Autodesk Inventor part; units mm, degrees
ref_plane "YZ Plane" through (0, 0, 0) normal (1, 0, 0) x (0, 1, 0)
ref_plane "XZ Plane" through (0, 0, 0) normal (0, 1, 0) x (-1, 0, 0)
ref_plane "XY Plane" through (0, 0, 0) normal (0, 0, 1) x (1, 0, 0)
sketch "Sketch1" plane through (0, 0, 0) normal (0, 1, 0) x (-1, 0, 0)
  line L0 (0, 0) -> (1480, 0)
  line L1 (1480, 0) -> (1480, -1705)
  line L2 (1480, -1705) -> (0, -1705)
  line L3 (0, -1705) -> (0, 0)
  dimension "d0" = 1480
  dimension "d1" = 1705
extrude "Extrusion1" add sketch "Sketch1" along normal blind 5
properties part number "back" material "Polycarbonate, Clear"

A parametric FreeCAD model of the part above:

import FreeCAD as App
import Part
import Sketcher
from FreeCAD import Vector
Q = App.Units.Quantity

doc = App.newDocument("Part")
body = doc.addObject("PartDesign::Body", "Body")

sketch1 = doc.addObject("Sketcher::SketchObject", "Sketch")
body.addObject(sketch1)
sketch1.AttachmentSupport = (doc.XZ_Plane, [""])
sketch1.MapMode = "FlatFace"
sketch1.addGeometry(Part.LineSegment(Vector(-1480, 0, 0), Vector(0, 0, 0)), False)
sketch1.addGeometry(Part.LineSegment(Vector(0, 0, 0), Vector(0, -1705, 0)), False)
sketch1.addGeometry(Part.LineSegment(Vector(0, -1705, 0), Vector(-1480, -1705, 0)), False)
sketch1.addGeometry(Part.LineSegment(Vector(-1480, -1705, 0), Vector(-1480, 0, 0)), False)
sketch1.addConstraint(Sketcher.Constraint("Coincident", 0, 2, 1, 1))
sketch1.addConstraint(Sketcher.Constraint("Coincident", 1, 2, 2, 1))
sketch1.addConstraint(Sketcher.Constraint("Coincident", 2, 2, 3, 1))
sketch1.addConstraint(Sketcher.Constraint("Coincident", 3, 2, 0, 1))
sketch1.addConstraint(Sketcher.Constraint("Horizontal", 0))
sketch1.addConstraint(Sketcher.Constraint("Vertical", 1))
sketch1.addConstraint(Sketcher.Constraint("Horizontal", 2))
sketch1.addConstraint(Sketcher.Constraint("Vertical", 3))
sketch1.addConstraint(Sketcher.Constraint("Coincident", 0, 2, -1, 1))
sketch1.addConstraint(Sketcher.Constraint("DistanceX", 0, 1, 0, 2, Q("1480 mm")))
sketch1.addConstraint(Sketcher.Constraint("DistanceY", 1, 2, 1, 1, Q("1705 mm")))
pad1 = doc.addObject("PartDesign::Pad", "Pad")
body.addObject(pad1)
pad1.Profile = sketch1
pad1.Length = 5
pad1.Reversed = True

doc.recompute()
